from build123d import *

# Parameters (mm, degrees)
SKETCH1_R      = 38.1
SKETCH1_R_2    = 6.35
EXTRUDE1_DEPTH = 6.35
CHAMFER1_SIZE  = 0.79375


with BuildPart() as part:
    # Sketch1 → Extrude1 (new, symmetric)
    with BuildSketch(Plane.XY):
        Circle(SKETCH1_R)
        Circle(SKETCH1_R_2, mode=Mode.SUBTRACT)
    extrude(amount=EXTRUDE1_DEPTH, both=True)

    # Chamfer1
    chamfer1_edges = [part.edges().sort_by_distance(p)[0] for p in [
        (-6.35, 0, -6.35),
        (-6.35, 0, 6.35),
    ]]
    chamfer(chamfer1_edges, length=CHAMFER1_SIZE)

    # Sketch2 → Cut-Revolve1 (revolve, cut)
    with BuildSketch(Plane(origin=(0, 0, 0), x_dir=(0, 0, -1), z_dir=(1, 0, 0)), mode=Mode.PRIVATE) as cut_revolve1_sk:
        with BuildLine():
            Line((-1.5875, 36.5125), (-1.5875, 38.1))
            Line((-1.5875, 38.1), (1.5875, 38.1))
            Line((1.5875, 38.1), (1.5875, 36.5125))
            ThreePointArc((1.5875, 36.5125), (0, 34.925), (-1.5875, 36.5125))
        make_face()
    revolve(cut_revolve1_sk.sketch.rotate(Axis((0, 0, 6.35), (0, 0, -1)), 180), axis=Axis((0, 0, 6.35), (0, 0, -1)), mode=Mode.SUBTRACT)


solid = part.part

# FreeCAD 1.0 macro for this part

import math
import FreeCAD as App
import Part
import Sketcher
Q = App.Units.Quantity


def edges_at(feature, points):
    """Names of the edges that pass closest to the given points."""
    edges = feature.Shape.Edges
    near = lambda p: min(range(len(edges)), key=lambda i: edges[i].distToShape(Part.Vertex(*p))[0])
    return sorted({f"Edge{near(p) + 1}" for p in points})

doc = App.newDocument("Part")
body = doc.addObject("PartDesign::Body", "Body")

sketch1 = body.newObject("Sketcher::SketchObject", "Sketch")
sketch1.AttachmentSupport = (doc.getObject("XY_Plane"), [""])
sketch1.MapMode = "FlatFace"
sketch1.addGeometry([
    Part.Circle(App.Vector(0, 0, 0), App.Vector(0, 0, 1), 38.1),
    Part.Circle(App.Vector(0, 0, 0), App.Vector(0, 0, 1), 6.35),
], False)
sketch1.addConstraint([
    Sketcher.Constraint("Coincident", 0, 3, -1, 1),
    Sketcher.Constraint("Coincident", 1, 3, -1, 1),
    Sketcher.Constraint("Diameter", 0, Q("3 in")),
    Sketcher.Constraint("Diameter", 1, Q("0.5 in")),
])
pad1 = body.newObject("PartDesign::Pad", "Pad")
pad1.Profile = sketch1
pad1.Length = Q("0.5 in")
pad1.Midplane = True
doc.recompute()

chamfer = body.newObject("PartDesign::Chamfer", "Chamfer")
chamfer.Base = (pad1, edges_at(pad1, [(-6.35, 0, -6.35), (-6.35, 0, 6.35)]))
chamfer.Size = Q("0.03125 in")

sketch2 = body.newObject("Sketcher::SketchObject", "Sketch001")
sketch2.AttachmentSupport = (doc.getObject("YZ_Plane"), [""])
sketch2.MapMode = "FlatFace"
sketch2.addGeometry([
    Part.LineSegment(App.Vector(38.1, 1.5875, 0), App.Vector(36.5125, 1.5875, 0)),
    Part.ArcOfCircle(Part.Circle(App.Vector(36.5125, 0, 0), App.Vector(0, 0, 1), 1.5875), math.radians(90), math.radians(270)),
    Part.LineSegment(App.Vector(36.5125, -1.5875, 0), App.Vector(38.1, -1.5875, 0)),
    Part.LineSegment(App.Vector(38.1, -1.5875, 0), App.Vector(38.1, 1.5875, 0)),
], False)
sketch2.addConstraint([
    Sketcher.Constraint("Tangent", 0, 2, 1, 1),
    Sketcher.Constraint("Tangent", 1, 2, 2, 1),
    Sketcher.Constraint("Coincident", 2, 2, 3, 1),
    Sketcher.Constraint("Coincident", 3, 2, 0, 1),
    Sketcher.Constraint("Horizontal", 0),
    Sketcher.Constraint("Horizontal", 2),
    Sketcher.Constraint("Vertical", 3),
    Sketcher.Constraint("PointOnObject", 1, 3, -1),
    Sketcher.Constraint("Radius", 1, Q("0.0625 in")),
    Sketcher.Constraint("DistanceX", -1, 1, 2, 2, Q("1.5 in")),
    Sketcher.Constraint("DistanceX", 0, 2, 0, 1, Q("0.0625 in")),
])
groove = body.newObject("PartDesign::Groove", "Groove")
groove.Profile = sketch2
groove.ReferenceAxis = (sketch2, ["V_Axis"])
groove.Angle = 360

doc.recompute()
